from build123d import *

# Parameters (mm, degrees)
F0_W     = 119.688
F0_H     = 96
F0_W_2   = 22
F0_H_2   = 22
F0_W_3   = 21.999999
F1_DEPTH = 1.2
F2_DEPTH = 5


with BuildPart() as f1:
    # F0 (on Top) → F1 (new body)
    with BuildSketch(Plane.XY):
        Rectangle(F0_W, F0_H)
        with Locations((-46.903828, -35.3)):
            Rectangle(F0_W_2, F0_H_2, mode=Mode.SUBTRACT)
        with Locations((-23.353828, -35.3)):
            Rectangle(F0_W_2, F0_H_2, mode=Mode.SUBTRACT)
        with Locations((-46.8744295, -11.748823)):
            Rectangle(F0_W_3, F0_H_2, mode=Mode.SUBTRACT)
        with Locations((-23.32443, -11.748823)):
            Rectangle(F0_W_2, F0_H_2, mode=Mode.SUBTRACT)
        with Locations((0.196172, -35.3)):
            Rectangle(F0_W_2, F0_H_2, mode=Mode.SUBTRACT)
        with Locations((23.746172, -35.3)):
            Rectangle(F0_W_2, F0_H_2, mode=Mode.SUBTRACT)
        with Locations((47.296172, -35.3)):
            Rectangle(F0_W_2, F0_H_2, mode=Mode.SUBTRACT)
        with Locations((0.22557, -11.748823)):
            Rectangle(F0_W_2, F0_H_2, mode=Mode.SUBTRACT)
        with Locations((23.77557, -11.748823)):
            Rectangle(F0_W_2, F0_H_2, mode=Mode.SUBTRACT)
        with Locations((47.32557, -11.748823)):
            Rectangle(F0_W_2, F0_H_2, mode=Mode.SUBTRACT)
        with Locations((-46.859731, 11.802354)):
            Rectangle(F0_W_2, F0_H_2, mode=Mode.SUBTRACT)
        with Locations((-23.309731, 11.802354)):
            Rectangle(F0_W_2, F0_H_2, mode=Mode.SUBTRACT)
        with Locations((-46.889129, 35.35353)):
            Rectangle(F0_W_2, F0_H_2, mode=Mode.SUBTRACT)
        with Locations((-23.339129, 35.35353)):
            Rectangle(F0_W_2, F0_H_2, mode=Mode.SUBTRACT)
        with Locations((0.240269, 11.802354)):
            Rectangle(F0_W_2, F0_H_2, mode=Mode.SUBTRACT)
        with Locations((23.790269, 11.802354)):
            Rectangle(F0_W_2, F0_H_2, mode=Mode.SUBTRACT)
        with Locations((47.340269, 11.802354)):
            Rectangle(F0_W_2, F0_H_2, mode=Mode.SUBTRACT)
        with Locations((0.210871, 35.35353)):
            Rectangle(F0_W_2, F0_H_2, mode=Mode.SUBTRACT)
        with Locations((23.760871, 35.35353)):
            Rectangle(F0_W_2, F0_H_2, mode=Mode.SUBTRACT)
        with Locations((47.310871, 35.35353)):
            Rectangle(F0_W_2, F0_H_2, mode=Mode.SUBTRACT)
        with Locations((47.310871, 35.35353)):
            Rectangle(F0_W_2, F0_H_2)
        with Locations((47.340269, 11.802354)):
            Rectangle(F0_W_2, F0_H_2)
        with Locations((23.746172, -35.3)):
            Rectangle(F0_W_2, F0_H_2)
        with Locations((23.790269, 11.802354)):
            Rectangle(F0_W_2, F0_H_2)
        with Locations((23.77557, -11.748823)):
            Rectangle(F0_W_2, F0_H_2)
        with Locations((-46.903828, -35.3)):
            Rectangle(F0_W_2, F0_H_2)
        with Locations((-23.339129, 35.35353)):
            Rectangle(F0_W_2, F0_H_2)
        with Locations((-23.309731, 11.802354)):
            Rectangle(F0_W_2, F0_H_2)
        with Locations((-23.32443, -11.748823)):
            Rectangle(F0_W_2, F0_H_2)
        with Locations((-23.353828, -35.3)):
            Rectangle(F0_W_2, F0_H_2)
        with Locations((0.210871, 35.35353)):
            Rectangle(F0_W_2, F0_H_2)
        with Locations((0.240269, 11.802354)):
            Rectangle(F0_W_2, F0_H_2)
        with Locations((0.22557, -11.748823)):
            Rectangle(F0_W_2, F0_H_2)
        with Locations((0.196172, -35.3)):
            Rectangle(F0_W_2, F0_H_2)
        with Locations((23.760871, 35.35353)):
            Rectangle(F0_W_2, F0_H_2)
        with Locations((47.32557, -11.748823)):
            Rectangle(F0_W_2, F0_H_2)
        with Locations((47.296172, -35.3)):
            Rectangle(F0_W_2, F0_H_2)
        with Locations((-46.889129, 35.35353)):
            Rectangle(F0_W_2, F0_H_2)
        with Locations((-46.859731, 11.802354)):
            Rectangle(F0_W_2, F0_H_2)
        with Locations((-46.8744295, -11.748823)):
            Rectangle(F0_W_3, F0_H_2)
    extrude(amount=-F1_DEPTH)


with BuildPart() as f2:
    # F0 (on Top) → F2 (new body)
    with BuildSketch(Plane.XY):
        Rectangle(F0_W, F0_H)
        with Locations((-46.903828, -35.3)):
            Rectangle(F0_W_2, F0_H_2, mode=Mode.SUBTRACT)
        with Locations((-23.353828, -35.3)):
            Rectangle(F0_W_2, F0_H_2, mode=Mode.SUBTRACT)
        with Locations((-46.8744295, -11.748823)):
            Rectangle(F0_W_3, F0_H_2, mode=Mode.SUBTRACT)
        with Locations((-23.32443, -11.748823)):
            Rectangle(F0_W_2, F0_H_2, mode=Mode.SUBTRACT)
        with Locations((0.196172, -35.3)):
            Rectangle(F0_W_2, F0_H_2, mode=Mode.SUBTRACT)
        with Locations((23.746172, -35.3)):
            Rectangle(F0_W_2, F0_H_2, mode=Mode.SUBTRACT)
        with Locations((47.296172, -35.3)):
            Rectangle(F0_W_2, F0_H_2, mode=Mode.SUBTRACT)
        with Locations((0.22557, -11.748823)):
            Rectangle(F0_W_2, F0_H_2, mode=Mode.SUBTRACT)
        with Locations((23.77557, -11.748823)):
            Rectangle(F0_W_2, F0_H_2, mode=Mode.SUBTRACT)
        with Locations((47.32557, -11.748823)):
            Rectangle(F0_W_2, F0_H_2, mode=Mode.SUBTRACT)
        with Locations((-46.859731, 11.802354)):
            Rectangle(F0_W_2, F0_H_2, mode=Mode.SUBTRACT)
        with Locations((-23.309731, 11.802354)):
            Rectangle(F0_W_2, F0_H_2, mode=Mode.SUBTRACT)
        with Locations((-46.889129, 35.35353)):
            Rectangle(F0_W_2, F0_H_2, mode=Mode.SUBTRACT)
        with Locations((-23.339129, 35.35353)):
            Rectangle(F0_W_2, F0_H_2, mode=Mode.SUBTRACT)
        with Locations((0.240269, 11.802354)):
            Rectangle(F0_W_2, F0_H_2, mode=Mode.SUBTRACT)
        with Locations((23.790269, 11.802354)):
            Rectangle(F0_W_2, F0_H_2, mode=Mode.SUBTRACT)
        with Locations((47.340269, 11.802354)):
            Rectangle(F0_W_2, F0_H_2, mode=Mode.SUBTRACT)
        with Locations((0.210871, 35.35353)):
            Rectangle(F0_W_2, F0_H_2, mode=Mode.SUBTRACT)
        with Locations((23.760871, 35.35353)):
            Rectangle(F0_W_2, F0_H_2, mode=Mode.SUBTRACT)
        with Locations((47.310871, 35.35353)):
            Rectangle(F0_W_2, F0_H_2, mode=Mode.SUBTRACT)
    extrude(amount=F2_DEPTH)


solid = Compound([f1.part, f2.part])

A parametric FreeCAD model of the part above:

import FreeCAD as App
import Part
import Sketcher


def add_polygon(sketch, points):
    """Adds a closed chain of lines whose ends are joined by coincident constraints."""
    first, n = sketch.GeometryCount, len(points)
    for a, b in zip(points, points[1:] + points[:1]):
        sketch.addGeometry(Part.LineSegment(App.Vector(*a, 0), App.Vector(*b, 0)), False)
    for i in range(n):
        sketch.addConstraint(Sketcher.Constraint("Coincident", first + i, 2, first + (i + 1) % n, 1))

doc = App.newDocument("Part")
body = doc.addObject("PartDesign::Body", "Body")

sketch1 = body.newObject("Sketcher::SketchObject", "Sketch")
sketch1.AttachmentSupport = (doc.getObject("XY_Plane"), [""])
sketch1.MapMode = "FlatFace"
add_polygon(sketch1, [(-60, 48), (-60, -48), (60, -48), (60, 48)])
sketch1.addConstraint([
    Sketcher.Constraint("Vertical", 0),
    Sketcher.Constraint("Horizontal", 1),
    Sketcher.Constraint("Vertical", 2),
    Sketcher.Constraint("Horizontal", 3),
    Sketcher.Constraint("Symmetric", 0, 2, 2, 2, -1, 1),
    Sketcher.Constraint("DistanceY", 0, 2, 0, 1, 96.0),
    Sketcher.Constraint("DistanceX", 1, 1, 1, 2, 119.688),
])
pad1 = body.newObject("PartDesign::Pad", "Pad")
pad1.Profile = sketch1
pad1.Length = 1.2
pad1.Reversed = True
body2 = doc.addObject("PartDesign::Body", "Body001")

sketch2 = body2.newObject("Sketcher::SketchObject", "Sketch001")
sketch2.AttachmentSupport = (doc.getObject("XY_Plane001"), [""])
sketch2.MapMode = "FlatFace"
add_polygon(sketch2, [(-60, 48), (-60, -48), (60, -48), (60, 48)])
add_polygon(sketch2, [(-36, -46), (-58, -46), (-58, -24), (-36, -24)])
add_polygon(sketch2, [(-12, -46), (-34, -46), (-34, -24), (-12, -24)])
add_polygon(sketch2, [(11, -46), (-11, -46), (-11, -24), (11, -24)])
add_polygon(sketch2, [(-36, -23), (-58, -23), (-58, -1), (-36, -1)])
add_polygon(sketch2, [(-12, -23), (-34, -23), (-34, -1), (-12, -1)])
add_polygon(sketch2, [(35, -46), (13, -46), (13, -24), (35, -24)])
add_polygon(sketch2, [(58, -46), (36, -46), (36, -24), (58, -24)])
add_polygon(sketch2, [(11, -23), (-11, -23), (-11, -1), (11, -1)])
add_polygon(sketch2, [(35, -23), (13, -23), (13, -1), (35, -1)])
add_polygon(sketch2, [(58, -23), (36, -23), (36, -1), (58, -1)])
add_polygon(sketch2, [(-36, 1), (-58, 1), (-58, 23), (-36, 23)])
add_polygon(sketch2, [(-12, 1), (-34, 1), (-34, 23), (-12, 23)])
add_polygon(sketch2, [(-36, 24), (-58, 24), (-58, 46), (-36, 46)])
add_polygon(sketch2, [(-12, 24), (-34, 24), (-34, 46), (-12, 46)])
add_polygon(sketch2, [(11, 24), (-11, 24), (-11, 46), (11, 46)])
add_polygon(sketch2, [(11, 1), (-11, 1), (-11, 23), (11, 23)])
add_polygon(sketch2, [(35, 1), (13, 1), (13, 23), (35, 23)])
add_polygon(sketch2, [(58, 1), (36, 1), (36, 23), (58, 23)])
add_polygon(sketch2, [(35, 24), (13, 24), (13, 46), (35, 46)])
add_polygon(sketch2, [(58, 24), (36, 24), (36, 46), (58, 46)])
sketch2.addConstraint([
    Sketcher.Constraint("Vertical", 0),
    Sketcher.Constraint("Horizontal", 1),
    Sketcher.Constraint("Vertical", 2),
    Sketcher.Constraint("Horizontal", 3),
    Sketcher.Constraint("Horizontal", 4),
    Sketcher.Constraint("Vertical", 5),
    Sketcher.Constraint("Horizontal", 6),
    Sketcher.Constraint("Vertical", 7),
    Sketcher.Constraint("Horizontal", 8),
    Sketcher.Constraint("Vertical", 9),
    Sketcher.Constraint("Horizontal", 10),
    Sketcher.Constraint("Vertical", 11),
    Sketcher.Constraint("Horizontal", 12),
    Sketcher.Constraint("Vertical", 13),
    Sketcher.Constraint("Horizontal", 14),
    Sketcher.Constraint("Vertical", 15),
    Sketcher.Constraint("Horizontal", 16),
    Sketcher.Constraint("Vertical", 17),
    Sketcher.Constraint("Horizontal", 18),
    Sketcher.Constraint("Vertical", 19),
    Sketcher.Constraint("Horizontal", 20),
    Sketcher.Constraint("Vertical", 21),
    Sketcher.Constraint("Horizontal", 22),
    Sketcher.Constraint("Vertical", 23),
    Sketcher.Constraint("Horizontal", 24),
    Sketcher.Constraint("Vertical", 25),
    Sketcher.Constraint("Horizontal", 26),
    Sketcher.Constraint("Vertical", 27),
    Sketcher.Constraint("Horizontal", 28),
    Sketcher.Constraint("Vertical", 29),
    Sketcher.Constraint("Horizontal", 30),
    Sketcher.Constraint("Vertical", 31),
    Sketcher.Constraint("Horizontal", 32),
    Sketcher.Constraint("Vertical", 33),
    Sketcher.Constraint("Horizontal", 34),
    Sketcher.Constraint("Vertical", 35),
    Sketcher.Constraint("Horizontal", 36),
    Sketcher.Constraint("Vertical", 37),
    Sketcher.Constraint("Horizontal", 38),
    Sketcher.Constraint("Vertical", 39),
    Sketcher.Constraint("Horizontal", 40),
    Sketcher.Constraint("Vertical", 41),
    Sketcher.Constraint("Horizontal", 42),
    Sketcher.Constraint("Vertical", 43),
    Sketcher.Constraint("Horizontal", 44),
    Sketcher.Constraint("Vertical", 45),
    Sketcher.Constraint("Horizontal", 46),
    Sketcher.Constraint("Vertical", 47),
    Sketcher.Constraint("Horizontal", 48),
    Sketcher.Constraint("Vertical", 49),
    Sketcher.Constraint("Horizontal", 50),
    Sketcher.Constraint("Vertical", 51),
    Sketcher.Constraint("Horizontal", 52),
    Sketcher.Constraint("Vertical", 53),
    Sketcher.Constraint("Horizontal", 54),
    Sketcher.Constraint("Vertical", 55),
    Sketcher.Constraint("Horizontal", 56),
    Sketcher.Constraint("Vertical", 57),
    Sketcher.Constraint("Horizontal", 58),
    Sketcher.Constraint("Vertical", 59),
    Sketcher.Constraint("Horizontal", 60),
    Sketcher.Constraint("Vertical", 61),
    Sketcher.Constraint("Horizontal", 62),
    Sketcher.Constraint("Vertical", 63),
    Sketcher.Constraint("Horizontal", 64),
    Sketcher.Constraint("Vertical", 65),
    Sketcher.Constraint("Horizontal", 66),
    Sketcher.Constraint("Vertical", 67),
    Sketcher.Constraint("Horizontal", 68),
    Sketcher.Constraint("Vertical", 69),
    Sketcher.Constraint("Horizontal", 70),
    Sketcher.Constraint("Vertical", 71),
    Sketcher.Constraint("Horizontal", 72),
    Sketcher.Constraint("Vertical", 73),
    Sketcher.Constraint("Horizontal", 74),
    Sketcher.Constraint("Vertical", 75),
    Sketcher.Constraint("Horizontal", 76),
    Sketcher.Constraint("Vertical", 77),
    Sketcher.Constraint("Horizontal", 78),
    Sketcher.Constraint("Vertical", 79),
    Sketcher.Constraint("Horizontal", 80),
    Sketcher.Constraint("Vertical", 81),
    Sketcher.Constraint("Horizontal", 82),
    Sketcher.Constraint("Vertical", 83),
    Sketcher.Constraint("Symmetric", 0, 2, 2, 2, -1, 1),
    Sketcher.Constraint("Horizontal", 7, 2, 8, 2),
    Sketcher.Constraint("Horizontal", 6, 2, 9, 2),
    Sketcher.Constraint("Horizontal", 11, 2, 12, 2),
    Sketcher.Constraint("Horizontal", 10, 2, 13, 2),
    Sketcher.Constraint("Horizontal", 19, 2, 20, 2),
    Sketcher.Constraint("Horizontal", 18, 2, 21, 2),
    Sketcher.Constraint("Horizontal", 15, 2, 24, 2),
    Sketcher.Constraint("Horizontal", 14, 2, 25, 2),
    Sketcher.Constraint("Horizontal", 27, 2, 28, 2),
    Sketcher.Constraint("Horizontal", 26, 2, 29, 2),
    Sketcher.Constraint("Horizontal", 23, 2, 32, 2),
    Sketcher.Constraint("Horizontal", 22, 2, 33, 2),
    Sketcher.Constraint("Horizontal", 35, 2, 36, 2),
    Sketcher.Constraint("Horizontal", 34, 2, 37, 2),
    Sketcher.Constraint("Horizontal", 39, 2, 40, 2),
    Sketcher.Constraint("Horizontal", 38, 2, 41, 2),
    Sketcher.Constraint("Horizontal", 47, 2, 48, 2),
    Sketcher.Constraint("Horizontal", 46, 2, 49, 2),
    Sketcher.Constraint("Horizontal", 55, 2, 56, 2),
    Sketcher.Constraint("Horizontal", 54, 2, 57, 2),
    Sketcher.Constraint("Horizontal", 59, 2, 60, 2),
    Sketcher.Constraint("Horizontal", 58, 2, 61, 2),
    Sketcher.Constraint("Horizontal", 51, 2, 64, 2),
    Sketcher.Constraint("Horizontal", 50, 2, 65, 2),
    Sketcher.Constraint("Horizontal", 67, 2, 68, 2),
    Sketcher.Constraint("Horizontal", 66, 2, 69, 2),
    Sketcher.Constraint("Horizontal", 71, 2, 72, 2),
    Sketcher.Constraint("Horizontal", 70, 2, 73, 2),
    Sketcher.Constraint("Horizontal", 63, 2, 76, 2),
    Sketcher.Constraint("Horizontal", 62, 2, 77, 2),
    Sketcher.Constraint("Horizontal", 79, 2, 80, 2),
    Sketcher.Constraint("Horizontal", 78, 2, 81, 2),
    Sketcher.Constraint("Equal", 6, 8),
    Sketcher.Constraint("Equal", 10, 12),
    Sketcher.Constraint("Equal", 14, 16),
    Sketcher.Constraint("Equal", 18, 20),
    Sketcher.Constraint("Equal", 22, 24),
    Sketcher.Constraint("Equal", 26, 28),
    Sketcher.Constraint("Equal", 30, 32),
    Sketcher.Constraint("Equal", 34, 36),
    Sketcher.Constraint("Equal", 38, 40),
    Sketcher.Constraint("Equal", 42, 44),
    Sketcher.Constraint("Equal", 46, 48),
    Sketcher.Constraint("Equal", 50, 52),
    Sketcher.Constraint("Equal", 54, 56),
    Sketcher.Constraint("Equal", 58, 60),
    Sketcher.Constraint("Equal", 62, 64),
    Sketcher.Constraint("Equal", 66, 68),
    Sketcher.Constraint("Equal", 70, 72),
    Sketcher.Constraint("Equal", 74, 76),
    Sketcher.Constraint("Equal", 78, 80),
    Sketcher.Constraint("Equal", 82, 5),
    Sketcher.Constraint("Equal", 15, 17),
    Sketcher.Constraint("Equal", 43, 45),
    Sketcher.Constraint("Equal", 51, 53),
    Sketcher.Constraint("DistanceX", 4, 2, 4, 1, 22.0),
    Sketcher.Constraint("DistanceY", 0, 2, 0, 1, 96.0),
    Sketcher.Constraint("DistanceY", 4, 2, -1, 1, 46.3),
    Sketcher.Constraint("DistanceX", 1, 1, 1, 2, 119.688),
    Sketcher.Constraint("DistanceX", 16, 2, -1, 1, 57.874429),
    Sketcher.Constraint("DistanceX", 20, 2, -1, 1, 34.32443),
    Sketcher.Constraint("DistanceX", 32, 2, -1, 1, 10.77443),
    Sketcher.Constraint("DistanceX", -1, 1, 36, 2, 12.77557),
    Sketcher.Constraint("DistanceX", -1, 1, 40, 2, 36.32557),
    Sketcher.Constraint("DistanceX", 44, 2, -1, 1, 57.859731),
    Sketcher.Constraint("DistanceX", 48, 2, -1, 1, 34.309731),
    Sketcher.Constraint("DistanceX", 52, 2, -1, 1, 57.889129),
    Sketcher.Constraint("DistanceY", -1, 1, 52, 2, 24.35353),
    Sketcher.Constraint("DistanceX", 56, 2, -1, 1, 34.339129),
    Sketcher.Constraint("DistanceX", 60, 2, -1, 1, 10.789129),
    Sketcher.Constraint("DistanceX", 64, 2, -1, 1, 10.759731),
    Sketcher.Constraint("DistanceX", -1, 1, 68, 2, 12.790269),
    Sketcher.Constraint("DistanceX", -1, 1, 72, 2, 36.340269),
    Sketcher.Constraint("DistanceX", -1, 1, 76, 2, 12.760871),
    Sketcher.Constraint("DistanceX", -1, 1, 80, 2, 36.310871),
    Sketcher.Constraint("DistanceX", 4, 2, -1, 1, 57.903828),
    Sketcher.Constraint("DistanceX", 8, 2, -1, 1, 34.353828),
    Sketcher.Constraint("DistanceX", 12, 2, -1, 1, 10.803828),
    Sketcher.Constraint("DistanceY", 16, 2, -1, 1, 22.748823),
    Sketcher.Constraint("DistanceX", -1, 1, 24, 2, 12.746172),
    Sketcher.Constraint("DistanceX", -1, 1, 28, 2, 36.296172),
    Sketcher.Constraint("DistanceY", -1, 1, 44, 2, 0.802354),
])
pad2 = body2.newObject("PartDesign::Pad", "Pad001")
pad2.Profile = sketch2
pad2.Length = 5

doc.recompute()
